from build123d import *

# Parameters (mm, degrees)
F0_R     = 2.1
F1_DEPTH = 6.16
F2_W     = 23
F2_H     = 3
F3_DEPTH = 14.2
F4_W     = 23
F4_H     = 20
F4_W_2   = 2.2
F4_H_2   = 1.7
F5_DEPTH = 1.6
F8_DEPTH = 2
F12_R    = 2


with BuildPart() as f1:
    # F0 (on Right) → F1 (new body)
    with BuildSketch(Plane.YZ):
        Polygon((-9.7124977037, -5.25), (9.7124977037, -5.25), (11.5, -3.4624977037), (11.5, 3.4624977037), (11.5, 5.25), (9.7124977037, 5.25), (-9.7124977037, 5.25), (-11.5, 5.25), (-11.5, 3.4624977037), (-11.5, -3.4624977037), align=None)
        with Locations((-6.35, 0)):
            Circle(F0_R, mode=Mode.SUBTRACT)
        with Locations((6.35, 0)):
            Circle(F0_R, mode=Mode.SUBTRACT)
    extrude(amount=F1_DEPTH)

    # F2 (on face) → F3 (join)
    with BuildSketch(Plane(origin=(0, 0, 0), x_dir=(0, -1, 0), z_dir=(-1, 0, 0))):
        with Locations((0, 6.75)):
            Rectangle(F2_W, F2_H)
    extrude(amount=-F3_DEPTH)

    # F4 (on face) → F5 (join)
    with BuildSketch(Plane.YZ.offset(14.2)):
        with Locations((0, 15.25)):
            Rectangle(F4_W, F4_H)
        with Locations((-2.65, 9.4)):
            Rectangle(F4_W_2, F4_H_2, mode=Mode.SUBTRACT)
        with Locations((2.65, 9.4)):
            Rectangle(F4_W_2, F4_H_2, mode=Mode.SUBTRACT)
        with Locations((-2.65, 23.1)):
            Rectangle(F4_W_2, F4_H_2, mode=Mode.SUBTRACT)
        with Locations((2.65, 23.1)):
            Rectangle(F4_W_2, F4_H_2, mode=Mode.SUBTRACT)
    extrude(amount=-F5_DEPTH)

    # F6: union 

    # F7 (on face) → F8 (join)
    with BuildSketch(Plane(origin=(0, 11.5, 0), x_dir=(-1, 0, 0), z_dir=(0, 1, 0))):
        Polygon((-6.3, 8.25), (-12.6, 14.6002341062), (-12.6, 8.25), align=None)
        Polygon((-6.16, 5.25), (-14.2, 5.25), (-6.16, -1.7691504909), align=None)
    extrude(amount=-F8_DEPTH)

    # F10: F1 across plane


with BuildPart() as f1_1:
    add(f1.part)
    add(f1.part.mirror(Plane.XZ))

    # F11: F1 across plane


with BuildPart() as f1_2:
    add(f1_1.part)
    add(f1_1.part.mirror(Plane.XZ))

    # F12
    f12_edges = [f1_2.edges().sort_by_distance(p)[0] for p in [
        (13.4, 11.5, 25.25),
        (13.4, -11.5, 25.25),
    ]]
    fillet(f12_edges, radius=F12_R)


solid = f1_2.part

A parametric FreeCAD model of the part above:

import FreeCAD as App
import Part
import Sketcher
from FreeCAD import Vector
Q = App.Units.Quantity


def edges_at(feature, points):
    """Names of the edges that pass closest to the given points."""
    edges = feature.Shape.Edges
    near = lambda p: min(range(len(edges)), key=lambda i: edges[i].distToShape(Part.Vertex(*p))[0])
    return sorted({f"Edge{near(p) + 1}" for p in points})


def add_polygon(sketch, points):
    """Adds a closed chain of lines whose ends are joined by coincident constraints."""
    first, n = sketch.GeometryCount, len(points)
    for a, b in zip(points, points[1:] + points[:1]):
        sketch.addGeometry(Part.LineSegment(App.Vector(*a, 0), App.Vector(*b, 0)), False)
    for i in range(n):
        sketch.addConstraint(Sketcher.Constraint("Coincident", first + i, 2, first + (i + 1) % n, 1))

doc = App.newDocument("Part")
body = doc.addObject("PartDesign::Body", "Body")

# Sketch on YZ plane
sketch1 = body.newObject("Sketcher::SketchObject", "Sketch")
sketch1.AttachmentSupport = (doc.getObject("YZ_Plane"), [""])
sketch1.MapMode = "FlatFace"
add_polygon(sketch1, [(-9.7, -5.2), (9.7, -5.2), (11.5, -3.5), (11.5, 5.2), (-11.5, 5.2), (-11.5, -3.5)])  # lines 0-5
sketch1.addGeometry(Part.Circle(Vector(-6.3, 0, 0), Vector(0, 0, 1), 2.1), False)  # 6
sketch1.addGeometry(Part.Circle(Vector(6.3, 0, 0), Vector(0, 0, 1), 2.1), False)  # 7
sketch1.addConstraint([
    Sketcher.Constraint("Horizontal", 0),
    Sketcher.Constraint("Vertical", 2),
    Sketcher.Constraint("Horizontal", 3),
    Sketcher.Constraint("Vertical", 4),
    Sketcher.Constraint("Equal", 6, 7),
    Sketcher.Constraint("Symmetric", 6, 3, 7, 3, -1, 1),
    Sketcher.Constraint("Symmetric", 1, 2, 4, 2, -2),
    Sketcher.Constraint("PointOnObject", 6, 3, -1),
    Sketcher.Constraint("Perpendicular", 1, 5),
    Sketcher.Constraint("Equal", 1, 5),
    Sketcher.Constraint("Diameter", 6, Q("4.2 mm")),
    Sketcher.Constraint("DistanceX", 3, 2, 3, 1, Q("23 mm")),
    Sketcher.Constraint("DistanceX", 6, 3, 7, 3, Q("12.7 mm")),
    Sketcher.Constraint("DistanceY", 0, 2, 2, 2, Q("10.5 mm")),
    Sketcher.Constraint("DistanceY", 0, 2, -1, 1, Q("5.25 mm")),
    Sketcher.Constraint("Distance", 1, Q("2.52791 mm")),
])
pad1 = body.newObject("PartDesign::Pad", "Pad")
pad1.Profile = sketch1
pad1.Length = 6.16

# Sketch on YZ plane
sketch2 = body.newObject("Sketcher::SketchObject", "Sketch001")
sketch2.AttachmentSupport = (doc.getObject("YZ_Plane"), [""])
sketch2.MapMode = "FlatFace"
add_polygon(sketch2, [(11.5, 8.2), (11.5, 5.2), (-11.5, 5.2), (-11.5, 8.2)])  # lines 0-3
sketch2.addConstraint([
    Sketcher.Constraint("Vertical", 0),
    Sketcher.Constraint("Horizontal", 1),
    Sketcher.Constraint("Vertical", 2),
    Sketcher.Constraint("Horizontal", 3),
    Sketcher.Constraint("DistanceX", 1, 2, 1, 1, Q("23 mm")),
    Sketcher.Constraint("DistanceY", 0, 2, 0, 1, Q("3 mm")),
    Sketcher.Constraint("DistanceX", -1, 1, 0, 2, Q("11.5 mm")),
    Sketcher.Constraint("DistanceY", -1, 1, 0, 2, Q("5.25 mm")),
])
pad2 = body.newObject("PartDesign::Pad", "Pad001")
pad2.Profile = sketch2
pad2.Length = 14.2

# Sketch on YZ plane
sketch3 = body.newObject("Sketcher::SketchObject", "Sketch002")
sketch3.AttachmentSupport = (doc.getObject("YZ_Plane"), [""])
sketch3.MapMode = "FlatFace"
sketch3.AttachmentOffset = App.Placement(Vector(0, 0, 14.2), App.Rotation())
add_polygon(sketch3, [(-11.5, 25.2), (-11.5, 5.2), (11.5, 5.2), (11.5, 25.2)])  # lines 0-3
add_polygon(sketch3, [(-1.6, 8.6), (-3.8, 8.6), (-3.8, 10.2), (-1.6, 10.2)])  # lines 4-7
add_polygon(sketch3, [(3.8, 8.6), (1.6, 8.6), (1.6, 10.2), (3.8, 10.2)])  # lines 8-11
add_polygon(sketch3, [(-1.6, 22.2), (-3.8, 22.2), (-3.8, 23.9), (-1.6, 23.9)])  # lines 12-15
add_polygon(sketch3, [(3.8, 22.2), (1.6, 22.2), (1.6, 23.9), (3.8, 23.9)])  # lines 16-19
sketch3.addConstraint([
    Sketcher.Constraint("Vertical", 0),
    Sketcher.Constraint("Horizontal", 1),
    Sketcher.Constraint("Vertical", 2),
    Sketcher.Constraint("Horizontal", 3),
    Sketcher.Constraint("Horizontal", 4),
    Sketcher.Constraint("Vertical", 5),
    Sketcher.Constraint("Horizontal", 6),
    Sketcher.Constraint("Vertical", 7),
    Sketcher.Constraint("Horizontal", 8),
    Sketcher.Constraint("Vertical", 9),
    Sketcher.Constraint("Horizontal", 10),
    Sketcher.Constraint("Vertical", 11),
    Sketcher.Constraint("Horizontal", 12),
    Sketcher.Constraint("Vertical", 13),
    Sketcher.Constraint("Horizontal", 14),
    Sketcher.Constraint("Vertical", 15),
    Sketcher.Constraint("Horizontal", 16),
    Sketcher.Constraint("Vertical", 17),
    Sketcher.Constraint("Horizontal", 18),
    Sketcher.Constraint("Vertical", 19),
    Sketcher.Constraint("Symmetric", 7, 2, 8, 2, -2),
    Sketcher.Constraint("Symmetric", 5, 2, 10, 2, -2),
    Sketcher.Constraint("Symmetric", 15, 2, 16, 2, -2),
    Sketcher.Constraint("Symmetric", 13, 2, 18, 2, -2),
    Sketcher.Constraint("Vertical", 5, 2, 12, 2),
    Sketcher.Constraint("Vertical", 7, 2, 14, 2),
    Sketcher.Constraint("Equal", 11, 13),
    Sketcher.Constraint("DistanceX", 1, 1, 1, 2, Q("23 mm")),
    Sketcher.Constraint("DistanceY", 0, 2, 0, 1, Q("20 mm")),
    Sketcher.Constraint("DistanceX", 4, 2, 4, 1, Q("2.2 mm")),
    Sketcher.Constraint("DistanceY", 5, 1, 5, 2, Q("1.7 mm")),
    Sketcher.Constraint("DistanceY", 0, 2, 5, 2, Q("5 mm")),
    Sketcher.Constraint("DistanceY", 12, 2, 3, 2, Q("3 mm")),
    Sketcher.Constraint("DistanceX", 0, 2, -1, 1, Q("11.5 mm")),
    Sketcher.Constraint("DistanceX", 7, 2, 8, 2, Q("3.1 mm")),
    Sketcher.Constraint("DistanceY", -1, 1, 0, 2, Q("5.25 mm")),
])
pad3 = body.newObject("PartDesign::Pad", "Pad002")
pad3.Profile = sketch3
pad3.Length = 1.6
pad3.Reversed = True

# Sketch on XZ plane
sketch4 = body.newObject("Sketcher::SketchObject", "Sketch003")
sketch4.AttachmentSupport = (doc.getObject("XZ_Plane"), [""])
sketch4.MapMode = "FlatFace"
sketch4.AttachmentOffset = App.Placement(Vector(0, 0, -11.5), App.Rotation())
add_polygon(sketch4, [(6, 8), (13, 15), (13, 8)])  # lines 0-2
add_polygon(sketch4, [(6, 5), (14, 5), (6, -2)])  # lines 3-5
sketch4.addConstraint([
    Sketcher.Constraint("Vertical", 1),
    Sketcher.Constraint("Horizontal", 2),
    Sketcher.Constraint("Horizontal", 3),
    Sketcher.Constraint("Vertical", 5),
    Sketcher.Constraint("DistanceX", 2, 2, 2, 1, Q("6.3 mm")),
    Sketcher.Constraint("DistanceY", 3, 2, 1, 2, Q("3 mm")),
    Sketcher.Constraint("DistanceX", 3, 1, 3, 2, Q("8.04 mm")),
    Sketcher.Constraint("DistanceX", -1, 1, 0, 2, Q("12.6 mm")),
    Sketcher.Constraint("DistanceX", -1, 1, 3, 2, Q("14.2 mm")),
    Sketcher.Constraint("DistanceY", -1, 1, 1, 2, Q("8.25 mm")),
    Sketcher.Constraint("DistanceY", 5, 1, 5, 2, Q("7.01915 mm")),
    Sketcher.Constraint("DistanceY", 1, 2, 1, 1, Q("6.350234 mm")),
])
pad4 = body.newObject("PartDesign::Pad", "Pad003")
pad4.Profile = sketch4
pad4.Length = 2
body2 = doc.addObject("PartDesign::Body", "Body001")
doc.recompute()

body2.BaseFeature = body
doc.recompute()

mirroring = doc.addObject("Part::Mirroring", "Mirroring")
mirroring.Source = body
mirroring.Base = Vector(0, 0, 0)
mirroring.Normal = Vector(0, -1, 0)
body3 = doc.addObject("PartDesign::Body", "Body002")
body3.BaseFeature = mirroring
boolean = body2.newObject("PartDesign::Boolean", "Boolean")
boolean.Type = "Fuse"
boolean.addObjects([body3])
doc.recompute()
body4 = doc.addObject("PartDesign::Body", "Body003")
doc.recompute()

body4.BaseFeature = body2
doc.recompute()

mirroring2 = doc.addObject("Part::Mirroring", "Mirroring001")
mirroring2.Source = body2
mirroring2.Base = Vector(0, 0, 0)
mirroring2.Normal = Vector(0, -1, 0)
body5 = doc.addObject("PartDesign::Body", "Body004")
body5.BaseFeature = mirroring2
boolean2 = body4.newObject("PartDesign::Boolean", "Boolean001")
boolean2.Type = "Fuse"
boolean2.addObjects([body5])
doc.recompute()

fillet = body4.newObject("PartDesign::Fillet", "Fillet")
fillet.Base = (boolean2, edges_at(boolean2, [(13.4, 11.5, 25.25), (13.4, -11.5, 25.25)]))
fillet.Radius = 2
mirroring.Visibility = False
mirroring2.Visibility = False

doc.recompute()
